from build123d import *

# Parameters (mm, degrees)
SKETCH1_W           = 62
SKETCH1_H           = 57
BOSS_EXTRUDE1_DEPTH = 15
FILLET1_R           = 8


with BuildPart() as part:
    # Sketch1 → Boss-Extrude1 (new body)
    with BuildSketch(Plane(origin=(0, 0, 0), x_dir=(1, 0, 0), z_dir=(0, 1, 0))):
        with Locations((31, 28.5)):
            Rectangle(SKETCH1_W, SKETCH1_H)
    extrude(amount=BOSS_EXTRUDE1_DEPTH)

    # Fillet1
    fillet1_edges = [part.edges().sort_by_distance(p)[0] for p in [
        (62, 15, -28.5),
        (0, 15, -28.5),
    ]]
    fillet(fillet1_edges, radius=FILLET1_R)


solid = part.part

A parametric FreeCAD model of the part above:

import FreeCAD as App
import Part
import Sketcher

V = App.Vector
Q = App.Units.Quantity


def edges_at(feature, points):
    """Names of the edges that pass closest to the given points."""
    edges = feature.Shape.Edges
    near = lambda p: min(range(len(edges)), key=lambda i: edges[i].distToShape(Part.Vertex(*p))[0])
    return sorted({f"Edge{near(p) + 1}" for p in points})


def add_polygon(sketch, points):
    """Adds a closed chain of lines whose ends are joined by coincident constraints."""
    first, n = sketch.GeometryCount, len(points)
    for a, b in zip(points, points[1:] + points[:1]):
        sketch.addGeometry(Part.LineSegment(App.Vector(*a, 0), App.Vector(*b, 0)), False)
    for i in range(n):
        sketch.addConstraint(Sketcher.Constraint("Coincident", first + i, 2, first + (i + 1) % n, 1))

doc = App.newDocument("Part")
body = doc.addObject("PartDesign::Body", "Body")

sketch1 = body.newObject("Sketcher::SketchObject", "Sketch")
sketch1.AttachmentSupport = (doc.getObject("XZ_Plane"), [""])
sketch1.MapMode = "FlatFace"
add_polygon(sketch1, [(0, -57), (0, 0), (62, 0), (62, -57)])
sketch1.addConstraint([
    Sketcher.Constraint("Vertical", 0),
    Sketcher.Constraint("Horizontal", 1),
    Sketcher.Constraint("Vertical", 2),
    Sketcher.Constraint("Horizontal", 3),
    Sketcher.Constraint("Coincident", 0, 2, -1, 1),
    Sketcher.Constraint("DistanceX", 1, 1, 1, 2, Q("62 mm")),
    Sketcher.Constraint("DistanceY", 0, 1, 0, 2, Q("57 mm")),
])
pad1 = body.newObject("PartDesign::Pad", "Pad")
pad1.Profile = sketch1
pad1.Length = 15
pad1.Reversed = True
doc.recompute()

fillet = body.newObject("PartDesign::Fillet", "Fillet")
fillet.Base = (pad1, edges_at(pad1, [(62, 15, -28.5), (0, 15, -28.5)]))
fillet.Radius = 8

doc.recompute()
